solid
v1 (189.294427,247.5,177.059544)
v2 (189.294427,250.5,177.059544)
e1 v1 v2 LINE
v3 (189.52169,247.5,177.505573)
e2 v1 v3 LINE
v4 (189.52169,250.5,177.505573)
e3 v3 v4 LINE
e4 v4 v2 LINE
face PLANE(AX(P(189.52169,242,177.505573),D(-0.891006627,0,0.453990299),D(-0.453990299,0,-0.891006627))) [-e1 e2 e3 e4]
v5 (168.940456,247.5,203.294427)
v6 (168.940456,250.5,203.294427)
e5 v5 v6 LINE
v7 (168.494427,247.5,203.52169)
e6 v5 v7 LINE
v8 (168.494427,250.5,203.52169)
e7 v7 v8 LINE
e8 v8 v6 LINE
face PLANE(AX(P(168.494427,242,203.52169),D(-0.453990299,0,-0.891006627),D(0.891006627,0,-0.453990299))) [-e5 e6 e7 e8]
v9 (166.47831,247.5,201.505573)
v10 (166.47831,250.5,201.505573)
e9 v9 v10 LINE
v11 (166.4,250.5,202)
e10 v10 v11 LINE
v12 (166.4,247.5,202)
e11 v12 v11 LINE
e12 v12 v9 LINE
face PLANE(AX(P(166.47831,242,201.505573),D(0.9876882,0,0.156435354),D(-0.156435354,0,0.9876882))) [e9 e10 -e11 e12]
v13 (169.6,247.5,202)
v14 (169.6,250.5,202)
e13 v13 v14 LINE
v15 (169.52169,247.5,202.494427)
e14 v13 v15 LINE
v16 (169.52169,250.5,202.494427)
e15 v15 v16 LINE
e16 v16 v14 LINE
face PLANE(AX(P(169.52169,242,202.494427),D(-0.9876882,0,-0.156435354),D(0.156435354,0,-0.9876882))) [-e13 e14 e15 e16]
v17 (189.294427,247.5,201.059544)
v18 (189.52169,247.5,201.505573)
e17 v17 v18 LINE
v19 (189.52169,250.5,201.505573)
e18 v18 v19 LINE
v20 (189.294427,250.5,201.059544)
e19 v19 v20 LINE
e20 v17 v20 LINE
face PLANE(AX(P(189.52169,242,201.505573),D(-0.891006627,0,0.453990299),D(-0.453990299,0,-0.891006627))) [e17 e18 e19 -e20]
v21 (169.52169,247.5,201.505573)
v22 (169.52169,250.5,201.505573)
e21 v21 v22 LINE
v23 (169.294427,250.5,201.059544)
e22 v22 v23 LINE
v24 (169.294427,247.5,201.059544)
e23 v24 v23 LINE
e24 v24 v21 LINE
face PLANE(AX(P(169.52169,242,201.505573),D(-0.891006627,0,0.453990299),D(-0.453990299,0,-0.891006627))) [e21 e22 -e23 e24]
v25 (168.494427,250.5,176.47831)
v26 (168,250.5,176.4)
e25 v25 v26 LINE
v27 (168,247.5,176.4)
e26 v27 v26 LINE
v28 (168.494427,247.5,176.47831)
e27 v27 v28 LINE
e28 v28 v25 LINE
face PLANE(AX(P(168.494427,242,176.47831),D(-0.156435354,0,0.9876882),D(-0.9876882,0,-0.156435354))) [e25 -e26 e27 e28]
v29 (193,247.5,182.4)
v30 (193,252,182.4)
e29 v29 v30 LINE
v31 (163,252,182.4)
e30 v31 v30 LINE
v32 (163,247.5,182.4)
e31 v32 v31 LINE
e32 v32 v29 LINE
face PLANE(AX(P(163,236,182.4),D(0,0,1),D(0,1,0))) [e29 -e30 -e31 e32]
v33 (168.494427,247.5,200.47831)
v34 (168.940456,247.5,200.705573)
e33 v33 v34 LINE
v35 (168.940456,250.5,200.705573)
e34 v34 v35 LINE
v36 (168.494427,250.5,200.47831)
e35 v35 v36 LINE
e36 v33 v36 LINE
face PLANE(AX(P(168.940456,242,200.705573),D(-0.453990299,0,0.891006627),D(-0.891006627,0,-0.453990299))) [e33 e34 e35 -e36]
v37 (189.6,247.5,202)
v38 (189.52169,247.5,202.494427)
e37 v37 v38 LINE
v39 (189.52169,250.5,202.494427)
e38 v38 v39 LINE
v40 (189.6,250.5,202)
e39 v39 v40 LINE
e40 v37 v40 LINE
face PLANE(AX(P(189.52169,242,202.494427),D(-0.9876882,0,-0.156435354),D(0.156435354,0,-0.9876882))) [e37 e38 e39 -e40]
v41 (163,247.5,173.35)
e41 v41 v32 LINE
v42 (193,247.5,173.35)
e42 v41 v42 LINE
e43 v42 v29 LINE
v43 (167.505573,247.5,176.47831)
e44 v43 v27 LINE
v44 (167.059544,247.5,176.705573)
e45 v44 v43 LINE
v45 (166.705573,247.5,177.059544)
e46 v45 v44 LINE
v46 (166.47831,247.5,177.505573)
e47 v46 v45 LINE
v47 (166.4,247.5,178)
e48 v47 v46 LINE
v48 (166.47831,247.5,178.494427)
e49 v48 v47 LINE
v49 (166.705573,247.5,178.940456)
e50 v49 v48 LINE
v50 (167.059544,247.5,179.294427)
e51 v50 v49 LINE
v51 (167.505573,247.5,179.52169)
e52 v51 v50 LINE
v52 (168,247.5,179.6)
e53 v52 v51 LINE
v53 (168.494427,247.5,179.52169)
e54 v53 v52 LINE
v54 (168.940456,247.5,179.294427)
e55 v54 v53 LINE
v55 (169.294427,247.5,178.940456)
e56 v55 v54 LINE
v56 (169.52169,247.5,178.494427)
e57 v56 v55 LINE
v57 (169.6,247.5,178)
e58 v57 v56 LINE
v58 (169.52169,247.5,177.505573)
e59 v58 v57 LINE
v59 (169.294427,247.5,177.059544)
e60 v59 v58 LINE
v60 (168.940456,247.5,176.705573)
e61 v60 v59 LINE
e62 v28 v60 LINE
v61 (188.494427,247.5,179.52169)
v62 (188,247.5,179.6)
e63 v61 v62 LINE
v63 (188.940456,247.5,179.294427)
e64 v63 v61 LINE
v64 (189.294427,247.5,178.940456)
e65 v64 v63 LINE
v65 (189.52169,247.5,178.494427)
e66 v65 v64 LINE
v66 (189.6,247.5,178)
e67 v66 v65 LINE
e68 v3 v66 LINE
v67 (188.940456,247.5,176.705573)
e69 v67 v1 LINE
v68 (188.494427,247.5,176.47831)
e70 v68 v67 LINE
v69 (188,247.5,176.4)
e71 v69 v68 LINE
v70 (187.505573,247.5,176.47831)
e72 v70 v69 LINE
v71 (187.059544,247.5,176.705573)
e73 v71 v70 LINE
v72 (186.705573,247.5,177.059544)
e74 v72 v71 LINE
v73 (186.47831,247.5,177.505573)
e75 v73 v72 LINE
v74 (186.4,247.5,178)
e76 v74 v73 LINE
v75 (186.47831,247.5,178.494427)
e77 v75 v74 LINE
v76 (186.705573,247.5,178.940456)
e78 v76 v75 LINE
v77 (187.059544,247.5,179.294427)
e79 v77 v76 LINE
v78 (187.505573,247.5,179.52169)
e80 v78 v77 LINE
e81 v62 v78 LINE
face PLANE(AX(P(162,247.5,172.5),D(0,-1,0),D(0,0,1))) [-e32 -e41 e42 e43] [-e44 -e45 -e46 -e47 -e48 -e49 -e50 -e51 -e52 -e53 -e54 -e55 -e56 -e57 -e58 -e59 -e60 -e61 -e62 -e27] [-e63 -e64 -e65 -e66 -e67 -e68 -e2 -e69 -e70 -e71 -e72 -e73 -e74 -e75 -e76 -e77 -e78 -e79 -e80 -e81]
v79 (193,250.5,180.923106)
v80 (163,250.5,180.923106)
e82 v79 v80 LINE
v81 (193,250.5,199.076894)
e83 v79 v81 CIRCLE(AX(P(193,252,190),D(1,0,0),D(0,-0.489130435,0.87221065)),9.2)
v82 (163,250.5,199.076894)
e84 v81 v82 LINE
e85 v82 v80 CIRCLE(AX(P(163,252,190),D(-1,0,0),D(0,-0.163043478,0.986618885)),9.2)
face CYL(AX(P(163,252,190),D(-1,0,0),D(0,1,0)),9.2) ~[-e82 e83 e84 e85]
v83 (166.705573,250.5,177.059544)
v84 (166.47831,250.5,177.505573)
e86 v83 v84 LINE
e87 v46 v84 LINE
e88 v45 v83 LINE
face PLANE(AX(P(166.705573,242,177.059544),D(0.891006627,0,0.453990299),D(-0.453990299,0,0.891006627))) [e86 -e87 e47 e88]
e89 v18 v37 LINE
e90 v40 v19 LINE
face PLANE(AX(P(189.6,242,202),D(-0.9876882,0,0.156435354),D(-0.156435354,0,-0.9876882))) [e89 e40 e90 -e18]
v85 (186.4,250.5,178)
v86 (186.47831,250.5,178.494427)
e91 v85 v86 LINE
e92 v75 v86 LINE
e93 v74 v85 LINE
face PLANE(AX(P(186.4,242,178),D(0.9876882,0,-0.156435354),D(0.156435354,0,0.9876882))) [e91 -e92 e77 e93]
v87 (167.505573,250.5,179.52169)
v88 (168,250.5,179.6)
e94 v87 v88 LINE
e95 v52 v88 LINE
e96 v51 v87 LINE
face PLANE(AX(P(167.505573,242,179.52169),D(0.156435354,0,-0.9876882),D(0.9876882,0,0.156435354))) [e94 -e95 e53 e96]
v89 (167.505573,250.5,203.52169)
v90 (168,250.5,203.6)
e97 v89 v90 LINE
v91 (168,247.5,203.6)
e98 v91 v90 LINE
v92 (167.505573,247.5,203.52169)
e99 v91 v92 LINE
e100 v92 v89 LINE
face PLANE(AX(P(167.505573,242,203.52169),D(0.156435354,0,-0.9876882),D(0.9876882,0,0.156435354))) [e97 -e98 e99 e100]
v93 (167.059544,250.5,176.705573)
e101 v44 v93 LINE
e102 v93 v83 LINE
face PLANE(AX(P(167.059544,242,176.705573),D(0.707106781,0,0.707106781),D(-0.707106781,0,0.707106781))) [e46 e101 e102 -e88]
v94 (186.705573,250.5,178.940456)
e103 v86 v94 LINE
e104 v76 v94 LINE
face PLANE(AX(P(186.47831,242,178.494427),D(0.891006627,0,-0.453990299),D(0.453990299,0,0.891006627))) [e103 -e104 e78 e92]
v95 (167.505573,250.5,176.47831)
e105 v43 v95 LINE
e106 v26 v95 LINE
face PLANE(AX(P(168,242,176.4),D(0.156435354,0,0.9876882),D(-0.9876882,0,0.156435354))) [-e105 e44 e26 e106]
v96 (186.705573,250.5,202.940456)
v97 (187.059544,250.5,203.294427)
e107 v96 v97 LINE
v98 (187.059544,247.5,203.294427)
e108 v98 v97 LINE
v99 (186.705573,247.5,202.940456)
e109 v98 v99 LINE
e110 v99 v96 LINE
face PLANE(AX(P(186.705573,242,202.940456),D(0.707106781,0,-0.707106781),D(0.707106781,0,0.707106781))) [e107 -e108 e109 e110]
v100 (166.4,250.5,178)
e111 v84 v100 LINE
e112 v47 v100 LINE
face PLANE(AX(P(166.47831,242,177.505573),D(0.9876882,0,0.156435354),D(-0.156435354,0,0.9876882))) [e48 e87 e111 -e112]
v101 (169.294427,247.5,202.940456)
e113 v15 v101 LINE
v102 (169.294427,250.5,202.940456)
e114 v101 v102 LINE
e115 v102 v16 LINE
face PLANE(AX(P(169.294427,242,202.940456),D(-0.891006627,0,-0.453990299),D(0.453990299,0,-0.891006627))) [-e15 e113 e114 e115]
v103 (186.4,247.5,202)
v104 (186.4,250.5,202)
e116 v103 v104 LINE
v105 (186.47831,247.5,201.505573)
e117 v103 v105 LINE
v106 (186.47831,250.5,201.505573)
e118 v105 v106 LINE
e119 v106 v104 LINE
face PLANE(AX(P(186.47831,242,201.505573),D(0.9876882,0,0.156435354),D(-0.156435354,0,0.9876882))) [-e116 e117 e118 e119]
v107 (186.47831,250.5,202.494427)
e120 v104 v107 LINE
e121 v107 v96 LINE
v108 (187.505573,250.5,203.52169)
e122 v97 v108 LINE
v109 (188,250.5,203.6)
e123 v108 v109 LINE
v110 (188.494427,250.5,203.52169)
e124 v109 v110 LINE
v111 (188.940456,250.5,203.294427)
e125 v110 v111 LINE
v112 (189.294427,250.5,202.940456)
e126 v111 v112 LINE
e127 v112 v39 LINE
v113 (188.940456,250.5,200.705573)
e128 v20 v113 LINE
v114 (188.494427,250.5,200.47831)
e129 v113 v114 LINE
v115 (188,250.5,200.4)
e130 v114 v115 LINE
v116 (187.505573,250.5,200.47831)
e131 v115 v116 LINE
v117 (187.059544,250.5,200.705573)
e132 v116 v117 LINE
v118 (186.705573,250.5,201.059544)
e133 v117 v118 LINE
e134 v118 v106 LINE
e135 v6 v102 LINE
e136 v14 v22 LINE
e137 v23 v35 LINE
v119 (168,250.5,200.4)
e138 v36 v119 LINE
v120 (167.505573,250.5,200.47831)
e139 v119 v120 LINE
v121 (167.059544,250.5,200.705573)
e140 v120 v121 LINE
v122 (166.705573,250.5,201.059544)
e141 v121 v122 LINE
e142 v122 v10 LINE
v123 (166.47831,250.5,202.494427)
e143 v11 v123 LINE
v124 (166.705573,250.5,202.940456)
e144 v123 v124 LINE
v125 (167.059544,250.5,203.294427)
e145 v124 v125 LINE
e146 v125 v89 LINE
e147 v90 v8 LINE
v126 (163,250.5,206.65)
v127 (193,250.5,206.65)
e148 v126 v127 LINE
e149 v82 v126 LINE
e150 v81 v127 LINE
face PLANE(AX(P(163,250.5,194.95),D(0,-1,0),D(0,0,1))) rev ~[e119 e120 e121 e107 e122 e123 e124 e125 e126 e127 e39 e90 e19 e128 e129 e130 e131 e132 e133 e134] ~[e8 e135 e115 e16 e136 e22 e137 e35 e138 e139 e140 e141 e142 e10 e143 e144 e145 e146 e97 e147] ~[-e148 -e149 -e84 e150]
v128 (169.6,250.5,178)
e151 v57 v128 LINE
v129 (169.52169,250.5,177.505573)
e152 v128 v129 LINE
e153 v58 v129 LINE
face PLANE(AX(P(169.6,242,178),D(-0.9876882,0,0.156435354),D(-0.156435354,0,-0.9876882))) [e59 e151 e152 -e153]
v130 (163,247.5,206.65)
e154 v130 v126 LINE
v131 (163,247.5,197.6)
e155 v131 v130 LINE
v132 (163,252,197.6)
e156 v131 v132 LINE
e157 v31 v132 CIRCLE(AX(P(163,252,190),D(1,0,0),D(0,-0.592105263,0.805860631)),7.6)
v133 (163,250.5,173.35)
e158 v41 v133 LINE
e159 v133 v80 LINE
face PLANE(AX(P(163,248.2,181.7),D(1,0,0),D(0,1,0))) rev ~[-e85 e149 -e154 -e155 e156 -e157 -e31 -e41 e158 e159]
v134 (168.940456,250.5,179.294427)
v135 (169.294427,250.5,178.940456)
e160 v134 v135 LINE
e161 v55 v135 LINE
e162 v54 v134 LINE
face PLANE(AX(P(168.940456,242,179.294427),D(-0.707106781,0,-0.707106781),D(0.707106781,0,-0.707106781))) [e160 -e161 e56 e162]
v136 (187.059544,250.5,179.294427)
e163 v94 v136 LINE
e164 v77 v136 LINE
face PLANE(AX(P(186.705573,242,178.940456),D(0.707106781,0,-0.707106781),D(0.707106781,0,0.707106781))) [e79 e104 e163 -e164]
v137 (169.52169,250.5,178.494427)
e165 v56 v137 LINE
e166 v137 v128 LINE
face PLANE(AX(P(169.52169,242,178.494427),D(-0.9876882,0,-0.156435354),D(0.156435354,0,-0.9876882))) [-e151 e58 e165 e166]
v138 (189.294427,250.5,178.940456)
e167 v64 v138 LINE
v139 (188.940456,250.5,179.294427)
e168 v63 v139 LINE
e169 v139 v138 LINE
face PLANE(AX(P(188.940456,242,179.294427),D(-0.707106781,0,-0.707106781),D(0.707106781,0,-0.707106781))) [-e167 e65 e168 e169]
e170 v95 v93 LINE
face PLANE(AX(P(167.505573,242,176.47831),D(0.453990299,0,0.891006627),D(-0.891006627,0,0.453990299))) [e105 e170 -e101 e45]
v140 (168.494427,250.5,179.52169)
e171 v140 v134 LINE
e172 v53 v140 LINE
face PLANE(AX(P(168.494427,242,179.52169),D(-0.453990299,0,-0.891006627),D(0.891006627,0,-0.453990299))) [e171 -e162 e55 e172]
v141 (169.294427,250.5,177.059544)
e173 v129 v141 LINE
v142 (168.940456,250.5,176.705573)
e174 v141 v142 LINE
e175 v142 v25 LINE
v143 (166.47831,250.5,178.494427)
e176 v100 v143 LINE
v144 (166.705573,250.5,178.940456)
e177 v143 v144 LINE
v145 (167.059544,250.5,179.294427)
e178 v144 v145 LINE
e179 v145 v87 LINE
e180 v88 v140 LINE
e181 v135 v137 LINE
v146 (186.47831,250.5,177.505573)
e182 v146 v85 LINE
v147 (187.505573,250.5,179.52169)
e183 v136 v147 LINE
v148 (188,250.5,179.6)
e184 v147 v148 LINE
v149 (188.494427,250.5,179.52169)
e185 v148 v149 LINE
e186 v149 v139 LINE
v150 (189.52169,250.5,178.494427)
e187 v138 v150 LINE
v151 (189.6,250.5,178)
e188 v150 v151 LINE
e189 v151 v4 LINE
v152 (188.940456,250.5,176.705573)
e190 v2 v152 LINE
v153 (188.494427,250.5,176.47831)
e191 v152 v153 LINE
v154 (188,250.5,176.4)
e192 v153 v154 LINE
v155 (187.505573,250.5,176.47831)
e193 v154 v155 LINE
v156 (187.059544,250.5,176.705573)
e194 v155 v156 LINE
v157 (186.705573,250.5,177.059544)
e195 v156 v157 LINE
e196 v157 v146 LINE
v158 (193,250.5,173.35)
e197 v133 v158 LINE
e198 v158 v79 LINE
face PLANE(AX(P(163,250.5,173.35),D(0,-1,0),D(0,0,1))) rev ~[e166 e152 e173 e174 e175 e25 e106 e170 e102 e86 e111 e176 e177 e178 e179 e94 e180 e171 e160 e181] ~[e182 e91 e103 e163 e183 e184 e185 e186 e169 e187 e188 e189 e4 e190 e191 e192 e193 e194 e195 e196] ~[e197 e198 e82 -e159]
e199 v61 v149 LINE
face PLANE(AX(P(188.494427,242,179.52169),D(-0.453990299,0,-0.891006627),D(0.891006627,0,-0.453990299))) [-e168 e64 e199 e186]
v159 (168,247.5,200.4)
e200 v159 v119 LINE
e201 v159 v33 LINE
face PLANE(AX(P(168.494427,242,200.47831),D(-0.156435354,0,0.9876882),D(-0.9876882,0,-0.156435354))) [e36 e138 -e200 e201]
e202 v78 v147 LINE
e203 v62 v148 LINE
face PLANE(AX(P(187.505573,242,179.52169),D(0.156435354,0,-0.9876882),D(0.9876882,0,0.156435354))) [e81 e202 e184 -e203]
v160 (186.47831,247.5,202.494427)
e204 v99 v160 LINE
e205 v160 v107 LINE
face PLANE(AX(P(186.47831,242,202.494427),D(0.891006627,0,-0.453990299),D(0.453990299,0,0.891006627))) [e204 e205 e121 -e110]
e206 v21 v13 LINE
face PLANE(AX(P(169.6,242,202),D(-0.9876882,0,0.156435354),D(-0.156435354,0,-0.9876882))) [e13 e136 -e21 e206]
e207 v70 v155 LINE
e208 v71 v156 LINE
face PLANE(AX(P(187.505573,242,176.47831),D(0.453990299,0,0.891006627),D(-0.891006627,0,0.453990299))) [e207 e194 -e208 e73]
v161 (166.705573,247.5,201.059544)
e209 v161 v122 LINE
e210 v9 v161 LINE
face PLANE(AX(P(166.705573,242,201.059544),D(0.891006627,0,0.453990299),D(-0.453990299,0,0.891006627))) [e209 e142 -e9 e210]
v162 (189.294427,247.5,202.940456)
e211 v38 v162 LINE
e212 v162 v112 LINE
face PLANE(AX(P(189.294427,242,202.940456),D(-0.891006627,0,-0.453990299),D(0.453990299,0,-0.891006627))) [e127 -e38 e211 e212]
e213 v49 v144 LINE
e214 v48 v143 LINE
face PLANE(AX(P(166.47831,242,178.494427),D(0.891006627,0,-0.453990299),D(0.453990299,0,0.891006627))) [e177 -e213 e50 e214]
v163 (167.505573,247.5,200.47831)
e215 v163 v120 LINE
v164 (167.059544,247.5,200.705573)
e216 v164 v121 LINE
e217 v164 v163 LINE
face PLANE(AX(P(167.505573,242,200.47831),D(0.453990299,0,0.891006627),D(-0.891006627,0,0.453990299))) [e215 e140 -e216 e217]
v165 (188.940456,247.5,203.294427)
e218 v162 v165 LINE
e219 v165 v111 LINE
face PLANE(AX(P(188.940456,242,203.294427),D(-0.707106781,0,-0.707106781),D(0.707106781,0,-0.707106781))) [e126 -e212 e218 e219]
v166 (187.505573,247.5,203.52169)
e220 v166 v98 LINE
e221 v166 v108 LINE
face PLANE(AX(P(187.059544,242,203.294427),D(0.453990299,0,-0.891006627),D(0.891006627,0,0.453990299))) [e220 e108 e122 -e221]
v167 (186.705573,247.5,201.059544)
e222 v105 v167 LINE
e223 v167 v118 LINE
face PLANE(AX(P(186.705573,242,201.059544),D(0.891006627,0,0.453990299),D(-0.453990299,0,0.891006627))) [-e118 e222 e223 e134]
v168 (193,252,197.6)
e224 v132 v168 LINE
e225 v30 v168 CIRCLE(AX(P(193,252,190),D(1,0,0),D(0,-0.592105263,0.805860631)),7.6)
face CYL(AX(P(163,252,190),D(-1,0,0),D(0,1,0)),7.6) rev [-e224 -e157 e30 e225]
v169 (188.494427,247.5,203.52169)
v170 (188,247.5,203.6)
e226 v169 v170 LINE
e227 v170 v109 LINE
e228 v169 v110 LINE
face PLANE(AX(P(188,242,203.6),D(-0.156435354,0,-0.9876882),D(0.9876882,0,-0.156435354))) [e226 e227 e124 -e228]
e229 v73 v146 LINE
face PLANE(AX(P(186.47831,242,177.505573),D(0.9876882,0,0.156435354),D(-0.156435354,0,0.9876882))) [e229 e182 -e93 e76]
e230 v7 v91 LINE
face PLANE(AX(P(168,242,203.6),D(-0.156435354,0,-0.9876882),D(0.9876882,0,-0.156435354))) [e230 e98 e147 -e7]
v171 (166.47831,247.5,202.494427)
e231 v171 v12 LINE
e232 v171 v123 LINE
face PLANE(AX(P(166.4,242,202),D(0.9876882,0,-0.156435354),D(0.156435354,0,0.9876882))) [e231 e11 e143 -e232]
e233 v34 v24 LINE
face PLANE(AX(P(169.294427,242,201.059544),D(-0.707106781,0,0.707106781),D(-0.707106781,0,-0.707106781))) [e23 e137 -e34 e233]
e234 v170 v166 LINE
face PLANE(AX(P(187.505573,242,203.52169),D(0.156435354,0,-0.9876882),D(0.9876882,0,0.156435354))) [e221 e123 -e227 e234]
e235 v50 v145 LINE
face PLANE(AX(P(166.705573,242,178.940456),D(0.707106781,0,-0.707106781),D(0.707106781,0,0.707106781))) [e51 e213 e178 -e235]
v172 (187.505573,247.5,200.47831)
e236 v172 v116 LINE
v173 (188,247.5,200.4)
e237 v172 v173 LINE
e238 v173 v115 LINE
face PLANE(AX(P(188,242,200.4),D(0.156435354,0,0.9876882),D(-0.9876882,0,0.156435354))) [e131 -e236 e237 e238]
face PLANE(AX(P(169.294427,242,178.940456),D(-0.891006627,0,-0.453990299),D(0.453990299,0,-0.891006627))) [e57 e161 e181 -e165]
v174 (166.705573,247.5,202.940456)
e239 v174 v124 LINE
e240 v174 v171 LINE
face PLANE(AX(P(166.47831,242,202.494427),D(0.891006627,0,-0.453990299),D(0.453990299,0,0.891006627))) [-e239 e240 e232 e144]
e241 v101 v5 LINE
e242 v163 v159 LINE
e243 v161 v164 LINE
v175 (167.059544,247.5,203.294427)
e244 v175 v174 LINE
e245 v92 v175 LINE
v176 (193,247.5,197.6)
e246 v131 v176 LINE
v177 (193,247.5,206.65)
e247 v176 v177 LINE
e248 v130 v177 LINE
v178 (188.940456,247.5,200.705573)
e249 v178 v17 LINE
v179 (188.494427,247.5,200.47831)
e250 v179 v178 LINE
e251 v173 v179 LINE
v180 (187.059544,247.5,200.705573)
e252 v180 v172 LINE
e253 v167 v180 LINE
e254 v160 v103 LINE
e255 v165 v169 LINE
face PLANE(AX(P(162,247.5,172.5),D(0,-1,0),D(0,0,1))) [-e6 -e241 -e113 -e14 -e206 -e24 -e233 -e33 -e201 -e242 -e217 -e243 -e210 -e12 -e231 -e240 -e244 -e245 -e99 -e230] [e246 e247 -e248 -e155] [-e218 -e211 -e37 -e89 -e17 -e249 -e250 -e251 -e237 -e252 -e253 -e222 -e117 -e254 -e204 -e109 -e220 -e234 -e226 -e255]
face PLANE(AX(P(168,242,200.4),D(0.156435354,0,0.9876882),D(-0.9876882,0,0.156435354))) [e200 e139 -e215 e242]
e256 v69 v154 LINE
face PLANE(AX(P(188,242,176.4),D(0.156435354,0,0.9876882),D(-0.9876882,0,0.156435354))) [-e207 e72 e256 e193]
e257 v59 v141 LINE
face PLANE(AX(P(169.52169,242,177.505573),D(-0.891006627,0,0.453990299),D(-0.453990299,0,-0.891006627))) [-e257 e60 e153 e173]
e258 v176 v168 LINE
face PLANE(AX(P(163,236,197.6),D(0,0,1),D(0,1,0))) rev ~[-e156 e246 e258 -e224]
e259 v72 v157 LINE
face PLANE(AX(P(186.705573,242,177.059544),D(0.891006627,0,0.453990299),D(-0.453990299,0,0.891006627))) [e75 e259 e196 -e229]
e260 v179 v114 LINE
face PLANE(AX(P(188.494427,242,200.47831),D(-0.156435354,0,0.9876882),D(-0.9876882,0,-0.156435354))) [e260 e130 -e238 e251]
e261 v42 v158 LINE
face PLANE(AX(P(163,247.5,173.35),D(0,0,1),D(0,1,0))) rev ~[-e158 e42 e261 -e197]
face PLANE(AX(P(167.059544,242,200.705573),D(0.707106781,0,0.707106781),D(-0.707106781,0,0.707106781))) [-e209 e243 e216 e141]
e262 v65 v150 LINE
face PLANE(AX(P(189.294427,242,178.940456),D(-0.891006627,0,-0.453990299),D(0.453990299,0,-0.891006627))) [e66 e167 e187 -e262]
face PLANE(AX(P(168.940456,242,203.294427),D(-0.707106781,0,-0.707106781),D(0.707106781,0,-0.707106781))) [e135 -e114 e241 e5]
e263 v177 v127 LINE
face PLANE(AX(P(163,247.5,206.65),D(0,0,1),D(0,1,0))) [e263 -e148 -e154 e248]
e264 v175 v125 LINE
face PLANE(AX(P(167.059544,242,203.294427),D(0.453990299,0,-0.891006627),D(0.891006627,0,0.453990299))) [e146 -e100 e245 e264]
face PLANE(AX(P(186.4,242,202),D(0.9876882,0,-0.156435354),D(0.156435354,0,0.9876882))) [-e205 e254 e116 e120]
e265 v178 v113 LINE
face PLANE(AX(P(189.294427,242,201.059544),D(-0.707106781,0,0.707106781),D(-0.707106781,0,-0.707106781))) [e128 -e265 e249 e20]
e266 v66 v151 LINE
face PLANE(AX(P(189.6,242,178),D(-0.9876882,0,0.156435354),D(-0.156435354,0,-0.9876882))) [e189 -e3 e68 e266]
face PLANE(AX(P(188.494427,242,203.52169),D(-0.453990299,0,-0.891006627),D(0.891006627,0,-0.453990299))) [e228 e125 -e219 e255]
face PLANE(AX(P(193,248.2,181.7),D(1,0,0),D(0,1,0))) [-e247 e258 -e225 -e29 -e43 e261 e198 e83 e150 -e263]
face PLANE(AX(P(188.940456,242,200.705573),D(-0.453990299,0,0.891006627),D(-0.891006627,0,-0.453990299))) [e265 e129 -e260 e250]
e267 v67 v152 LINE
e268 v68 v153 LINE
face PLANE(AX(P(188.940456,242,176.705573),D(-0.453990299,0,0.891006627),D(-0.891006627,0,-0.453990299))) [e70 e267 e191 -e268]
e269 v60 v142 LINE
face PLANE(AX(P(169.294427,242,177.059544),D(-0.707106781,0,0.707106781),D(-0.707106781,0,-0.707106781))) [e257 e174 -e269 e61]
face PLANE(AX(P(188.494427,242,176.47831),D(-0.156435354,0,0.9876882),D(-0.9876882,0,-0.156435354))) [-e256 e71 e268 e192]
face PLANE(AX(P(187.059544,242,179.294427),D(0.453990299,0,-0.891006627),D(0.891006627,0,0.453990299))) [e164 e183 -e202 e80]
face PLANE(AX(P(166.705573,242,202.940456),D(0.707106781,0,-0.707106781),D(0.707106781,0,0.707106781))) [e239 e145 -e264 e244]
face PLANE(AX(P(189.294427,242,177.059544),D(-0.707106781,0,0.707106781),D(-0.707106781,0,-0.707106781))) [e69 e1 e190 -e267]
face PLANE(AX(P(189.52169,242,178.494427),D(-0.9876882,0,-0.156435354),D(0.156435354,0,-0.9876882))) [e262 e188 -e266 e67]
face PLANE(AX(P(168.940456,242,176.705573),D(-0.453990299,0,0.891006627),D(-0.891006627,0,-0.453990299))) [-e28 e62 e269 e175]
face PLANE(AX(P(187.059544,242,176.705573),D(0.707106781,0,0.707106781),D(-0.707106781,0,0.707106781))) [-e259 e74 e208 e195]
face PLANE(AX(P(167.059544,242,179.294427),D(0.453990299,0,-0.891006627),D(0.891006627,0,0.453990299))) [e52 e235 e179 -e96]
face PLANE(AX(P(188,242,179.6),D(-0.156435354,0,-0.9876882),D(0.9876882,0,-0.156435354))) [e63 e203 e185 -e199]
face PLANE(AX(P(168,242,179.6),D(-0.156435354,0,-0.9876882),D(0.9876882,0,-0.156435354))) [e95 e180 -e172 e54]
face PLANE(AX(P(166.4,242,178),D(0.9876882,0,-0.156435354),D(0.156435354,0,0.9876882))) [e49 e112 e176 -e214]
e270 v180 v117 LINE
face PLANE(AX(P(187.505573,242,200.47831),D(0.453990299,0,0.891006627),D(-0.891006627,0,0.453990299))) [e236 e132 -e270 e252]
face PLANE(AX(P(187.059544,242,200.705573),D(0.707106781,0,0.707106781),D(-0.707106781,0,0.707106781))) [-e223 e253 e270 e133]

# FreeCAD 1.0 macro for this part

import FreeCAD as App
import Part
import Sketcher

V = App.Vector
Q = App.Units.Quantity


def add_polygon(sketch, points):
    """Adds a closed chain of lines whose ends are joined by coincident constraints."""
    first, n = sketch.GeometryCount, len(points)
    for a, b in zip(points, points[1:] + points[:1]):
        sketch.addGeometry(Part.LineSegment(App.Vector(*a, 0), App.Vector(*b, 0)), False)
    for i in range(n):
        sketch.addConstraint(Sketcher.Constraint("Coincident", first + i, 2, first + (i + 1) % n, 1))

doc = App.newDocument("Part")
body = doc.addObject("PartDesign::Body", "Body")

# Sketch on XY plane
sketch1 = body.newObject("Sketcher::SketchObject", "Sketch")
sketch1.AttachmentSupport = (doc.getObject("XY_Plane"), [""])
sketch1.MapMode = "FlatFace"
add_polygon(sketch1, [(1.6, 0), (1.52169, 0.494427), (1.294427, 0.940456), (0.940456, 1.294427), (0.494427, 1.52169), (0, 1.6), (-0.494427, 1.52169), (-0.940456, 1.294427), (-1.294427, 0.940456), (-1.52169, 0.494427), (-1.6, 0), (-1.52169, -0.494427), (-1.294427, -0.940456), (-0.940456, -1.294427), (-0.494427, -1.52169), (0, -1.6), (0.494427, -1.52169), (0.940456, -1.294427), (1.294427, -0.940456), (1.52169, -0.494427)])  # lines 0-19
sketch1.addConstraint(Sketcher.Constraint("Symmetric", 0, 2, 10, 2, -1, 1))
sketch1.addConstraint(Sketcher.Constraint("Symmetric", 1, 2, 11, 2, -1, 1))
sketch1.addConstraint(Sketcher.Constraint("Symmetric", 2, 2, 12, 2, -1, 1))
sketch1.addConstraint(Sketcher.Constraint("Symmetric", 3, 2, 13, 2, -1, 1))
sketch1.addConstraint(Sketcher.Constraint("Symmetric", 4, 2, 14, 2, -1, 1))
sketch1.addConstraint(Sketcher.Constraint("Symmetric", 5, 2, 15, 2, -1, 1))
sketch1.addConstraint(Sketcher.Constraint("Symmetric", 6, 2, 16, 2, -1, 1))
sketch1.addConstraint(Sketcher.Constraint("Symmetric", 7, 2, 17, 2, -1, 1))
sketch1.addConstraint(Sketcher.Constraint("Symmetric", 8, 2, 18, 2, -1, 1))
sketch1.addConstraint(Sketcher.Constraint("Symmetric", 9, 2, 19, 2, -1, 1))
sketch1.addConstraint(Sketcher.Constraint("Symmetric", 3, 2, 5, 2, -2))
sketch1.addConstraint(Sketcher.Constraint("Symmetric", 2, 2, 6, 2, -2))
sketch1.addConstraint(Sketcher.Constraint("Symmetric", 1, 2, 7, 2, -2))
sketch1.addConstraint(Sketcher.Constraint("Symmetric", 0, 2, 8, 2, -2))
sketch1.addConstraint(Sketcher.Constraint("PointOnObject", 4, 2, -2))
sketch1.addConstraint(Sketcher.Constraint("PointOnObject", 9, 2, -1))
sketch1.addConstraint(Sketcher.Constraint("Perpendicular", 0, 5))
sketch1.addConstraint(Sketcher.Constraint("Perpendicular", 1, 6))
sketch1.addConstraint(Sketcher.Constraint("Perpendicular", 2, 7))
sketch1.addConstraint(Sketcher.Constraint("Equal", 0, 1))
sketch1.addConstraint(Sketcher.Constraint("Equal", 1, 2))
sketch1.addConstraint(Sketcher.Constraint("Equal", 2, 3))
sketch1.addConstraint(Sketcher.Constraint("Equal", 3, 4))
sketch1.addConstraint(Sketcher.Constraint("Angle", 1, Q("116.999987 deg")))
sketch1.addConstraint(Sketcher.Constraint("DistanceY", -1, 1, 4, 2, Q("1.6 mm")))
sketch1.addConstraint(Sketcher.Constraint("DistanceY", 0, 2, 2, 2, Q("0.8 mm")))
pad1 = body.newObject("PartDesign::Pad", "Pad")
pad1.Profile = sketch1
pad1.Length = 10
body2 = doc.addObject("PartDesign::Body", "Body001")
doc.recompute()

body.Placement = App.Placement(V(0, 0, 0), App.Rotation(V(0, 1, 0), 90))
boolean = body2.newObject("PartDesign::Boolean", "Boolean")
boolean.Type = "Fuse"
boolean.addObjects([body])
body3 = doc.addObject("PartDesign::Body", "Body002")
doc.recompute()

body2.Placement = App.Placement(V(-10, 12, 10), App.Rotation(V(0, 0, 1), 0))
boolean2 = body3.newObject("PartDesign::Boolean", "Boolean001")
boolean2.Type = "Fuse"
boolean2.addObjects([body2])
body4 = doc.addObject("PartDesign::Body", "Body003")

# Sketch on XY plane
sketch2 = body4.newObject("Sketcher::SketchObject", "Sketch001")
sketch2.AttachmentSupport = (doc.getObject("XY_Plane003"), [""])
sketch2.MapMode = "FlatFace"
add_polygon(sketch2, [(1.6, 0), (1.52169, 0.494427), (1.294427, 0.940456), (0.940456, 1.294427), (0.494427, 1.52169), (0, 1.6), (-0.494427, 1.52169), (-0.940456, 1.294427), (-1.294427, 0.940456), (-1.52169, 0.494427), (-1.6, 0), (-1.52169, -0.494427), (-1.294427, -0.940456), (-0.940456, -1.294427), (-0.494427, -1.52169), (0, -1.6), (0.494427, -1.52169), (0.940456, -1.294427), (1.294427, -0.940456), (1.52169, -0.494427)])  # lines 0-19
sketch2.addConstraint(Sketcher.Constraint("Symmetric", 0, 2, 10, 2, -1, 1))
sketch2.addConstraint(Sketcher.Constraint("Symmetric", 1, 2, 11, 2, -1, 1))
sketch2.addConstraint(Sketcher.Constraint("Symmetric", 2, 2, 12, 2, -1, 1))
sketch2.addConstraint(Sketcher.Constraint("Symmetric", 3, 2, 13, 2, -1, 1))
sketch2.addConstraint(Sketcher.Constraint("Symmetric", 4, 2, 14, 2, -1, 1))
sketch2.addConstraint(Sketcher.Constraint("Symmetric", 5, 2, 15, 2, -1, 1))
sketch2.addConstraint(Sketcher.Constraint("Symmetric", 6, 2, 16, 2, -1, 1))
sketch2.addConstraint(Sketcher.Constraint("Symmetric", 7, 2, 17, 2, -1, 1))
sketch2.addConstraint(Sketcher.Constraint("Symmetric", 8, 2, 18, 2, -1, 1))
sketch2.addConstraint(Sketcher.Constraint("Symmetric", 9, 2, 19, 2, -1, 1))
sketch2.addConstraint(Sketcher.Constraint("Symmetric", 3, 2, 5, 2, -2))
sketch2.addConstraint(Sketcher.Constraint("Symmetric", 2, 2, 6, 2, -2))
sketch2.addConstraint(Sketcher.Constraint("Symmetric", 1, 2, 7, 2, -2))
sketch2.addConstraint(Sketcher.Constraint("Symmetric", 0, 2, 8, 2, -2))
sketch2.addConstraint(Sketcher.Constraint("PointOnObject", 4, 2, -2))
sketch2.addConstraint(Sketcher.Constraint("PointOnObject", 9, 2, -1))
sketch2.addConstraint(Sketcher.Constraint("Perpendicular", 0, 5))
sketch2.addConstraint(Sketcher.Constraint("Perpendicular", 1, 6))
sketch2.addConstraint(Sketcher.Constraint("Perpendicular", 2, 7))
sketch2.addConstraint(Sketcher.Constraint("Equal", 0, 1))
sketch2.addConstraint(Sketcher.Constraint("Equal", 1, 2))
sketch2.addConstraint(Sketcher.Constraint("Equal", 2, 3))
sketch2.addConstraint(Sketcher.Constraint("Equal", 3, 4))
sketch2.addConstraint(Sketcher.Constraint("Angle", 1, Q("116.999987 deg")))
sketch2.addConstraint(Sketcher.Constraint("DistanceY", -1, 1, 4, 2, Q("1.6 mm")))
sketch2.addConstraint(Sketcher.Constraint("DistanceY", 0, 2, 2, 2, Q("0.8 mm")))
pad2 = body4.newObject("PartDesign::Pad", "Pad001")
pad2.Profile = sketch2
pad2.Length = 10
body5 = doc.addObject("PartDesign::Body", "Body004")
doc.recompute()

body4.Placement = App.Placement(V(0, 0, 0), App.Rotation(V(0, 1, 0), 90))
boolean3 = body5.newObject("PartDesign::Boolean", "Boolean002")
boolean3.Type = "Fuse"
boolean3.addObjects([body4])
body6 = doc.addObject("PartDesign::Body", "Body005")
doc.recompute()

body5.Placement = App.Placement(V(-10, 12, -10), App.Rotation(V(0, 0, 1), 0))
boolean4 = body6.newObject("PartDesign::Boolean", "Boolean003")
boolean4.Type = "Fuse"
boolean4.addObjects([body5])
body7 = doc.addObject("PartDesign::Body", "Body006")

# Sketch on XY plane
sketch3 = body7.newObject("Sketcher::SketchObject", "Sketch002")
sketch3.AttachmentSupport = (doc.getObject("XY_Plane006"), [""])
sketch3.MapMode = "FlatFace"
add_polygon(sketch3, [(1.6, 0), (1.52169, 0.494427), (1.294427, 0.940456), (0.940456, 1.294427), (0.494427, 1.52169), (0, 1.6), (-0.494427, 1.52169), (-0.940456, 1.294427), (-1.294427, 0.940456), (-1.52169, 0.494427), (-1.6, 0), (-1.52169, -0.494427), (-1.294427, -0.940456), (-0.940456, -1.294427), (-0.494427, -1.52169), (0, -1.6), (0.494427, -1.52169), (0.940456, -1.294427), (1.294427, -0.940456), (1.52169, -0.494427)])  # lines 0-19
sketch3.addConstraint(Sketcher.Constraint("Symmetric", 0, 2, 10, 2, -1, 1))
sketch3.addConstraint(Sketcher.Constraint("Symmetric", 1, 2, 11, 2, -1, 1))
sketch3.addConstraint(Sketcher.Constraint("Symmetric", 2, 2, 12, 2, -1, 1))
sketch3.addConstraint(Sketcher.Constraint("Symmetric", 3, 2, 13, 2, -1, 1))
sketch3.addConstraint(Sketcher.Constraint("Symmetric", 4, 2, 14, 2, -1, 1))
sketch3.addConstraint(Sketcher.Constraint("Symmetric", 5, 2, 15, 2, -1, 1))
sketch3.addConstraint(Sketcher.Constraint("Symmetric", 6, 2, 16, 2, -1, 1))
sketch3.addConstraint(Sketcher.Constraint("Symmetric", 7, 2, 17, 2, -1, 1))
sketch3.addConstraint(Sketcher.Constraint("Symmetric", 8, 2, 18, 2, -1, 1))
sketch3.addConstraint(Sketcher.Constraint("Symmetric", 9, 2, 19, 2, -1, 1))
sketch3.addConstraint(Sketcher.Constraint("Symmetric", 3, 2, 5, 2, -2))
sketch3.addConstraint(Sketcher.Constraint("Symmetric", 2, 2, 6, 2, -2))
sketch3.addConstraint(Sketcher.Constraint("Symmetric", 1, 2, 7, 2, -2))
sketch3.addConstraint(Sketcher.Constraint("Symmetric", 0, 2, 8, 2, -2))
sketch3.addConstraint(Sketcher.Constraint("PointOnObject", 4, 2, -2))
sketch3.addConstraint(Sketcher.Constraint("PointOnObject", 9, 2, -1))
sketch3.addConstraint(Sketcher.Constraint("Perpendicular", 0, 5))
sketch3.addConstraint(Sketcher.Constraint("Perpendicular", 1, 6))
sketch3.addConstraint(Sketcher.Constraint("Perpendicular", 2, 7))
sketch3.addConstraint(Sketcher.Constraint("Equal", 0, 1))
sketch3.addConstraint(Sketcher.Constraint("Equal", 1, 2))
sketch3.addConstraint(Sketcher.Constraint("Equal", 2, 3))
sketch3.addConstraint(Sketcher.Constraint("Equal", 3, 4))
sketch3.addConstraint(Sketcher.Constraint("Angle", 1, Q("116.999987 deg")))
sketch3.addConstraint(Sketcher.Constraint("DistanceY", -1, 1, 4, 2, Q("1.6 mm")))
sketch3.addConstraint(Sketcher.Constraint("DistanceY", 0, 2, 2, 2, Q("0.8 mm")))
pad3 = body7.newObject("PartDesign::Pad", "Pad002")
pad3.Profile = sketch3
pad3.Length = 10
body8 = doc.addObject("PartDesign::Body", "Body007")
doc.recompute()

body7.Placement = App.Placement(V(0, 0, 0), App.Rotation(V(0, 1, 0), 90))
boolean5 = body8.newObject("PartDesign::Boolean", "Boolean004")
boolean5.Type = "Fuse"
boolean5.addObjects([body7])
body9 = doc.addObject("PartDesign::Body", "Body008")
doc.recompute()

body8.Placement = App.Placement(V(-10, -12, 10), App.Rotation(V(0, 0, 1), 0))
boolean6 = body9.newObject("PartDesign::Boolean", "Boolean005")
boolean6.Type = "Fuse"
boolean6.addObjects([body8])
body10 = doc.addObject("PartDesign::Body", "Body009")

# Sketch on XY plane
sketch4 = body10.newObject("Sketcher::SketchObject", "Sketch003")
sketch4.AttachmentSupport = (doc.getObject("XY_Plane009"), [""])
sketch4.MapMode = "FlatFace"
add_polygon(sketch4, [(1.6, 0), (1.52169, 0.494427), (1.294427, 0.940456), (0.940456, 1.294427), (0.494427, 1.52169), (0, 1.6), (-0.494427, 1.52169), (-0.940456, 1.294427), (-1.294427, 0.940456), (-1.52169, 0.494427), (-1.6, 0), (-1.52169, -0.494427), (-1.294427, -0.940456), (-0.940456, -1.294427), (-0.494427, -1.52169), (0, -1.6), (0.494427, -1.52169), (0.940456, -1.294427), (1.294427, -0.940456), (1.52169, -0.494427)])  # lines 0-19
sketch4.addConstraint(Sketcher.Constraint("Symmetric", 0, 2, 10, 2, -1, 1))
sketch4.addConstraint(Sketcher.Constraint("Symmetric", 1, 2, 11, 2, -1, 1))
sketch4.addConstraint(Sketcher.Constraint("Symmetric", 2, 2, 12, 2, -1, 1))
sketch4.addConstraint(Sketcher.Constraint("Symmetric", 3, 2, 13, 2, -1, 1))
sketch4.addConstraint(Sketcher.Constraint("Symmetric", 4, 2, 14, 2, -1, 1))
sketch4.addConstraint(Sketcher.Constraint("Symmetric", 5, 2, 15, 2, -1, 1))
sketch4.addConstraint(Sketcher.Constraint("Symmetric", 6, 2, 16, 2, -1, 1))
sketch4.addConstraint(Sketcher.Constraint("Symmetric", 7, 2, 17, 2, -1, 1))
sketch4.addConstraint(Sketcher.Constraint("Symmetric", 8, 2, 18, 2, -1, 1))
sketch4.addConstraint(Sketcher.Constraint("Symmetric", 9, 2, 19, 2, -1, 1))
sketch4.addConstraint(Sketcher.Constraint("Symmetric", 3, 2, 5, 2, -2))
sketch4.addConstraint(Sketcher.Constraint("Symmetric", 2, 2, 6, 2, -2))
sketch4.addConstraint(Sketcher.Constraint("Symmetric", 1, 2, 7, 2, -2))
sketch4.addConstraint(Sketcher.Constraint("Symmetric", 0, 2, 8, 2, -2))
sketch4.addConstraint(Sketcher.Constraint("PointOnObject", 4, 2, -2))
sketch4.addConstraint(Sketcher.Constraint("PointOnObject", 9, 2, -1))
sketch4.addConstraint(Sketcher.Constraint("Perpendicular", 0, 5))
sketch4.addConstraint(Sketcher.Constraint("Perpendicular", 1, 6))
sketch4.addConstraint(Sketcher.Constraint("Perpendicular", 2, 7))
sketch4.addConstraint(Sketcher.Constraint("Equal", 0, 1))
sketch4.addConstraint(Sketcher.Constraint("Equal", 1, 2))
sketch4.addConstraint(Sketcher.Constraint("Equal", 2, 3))
sketch4.addConstraint(Sketcher.Constraint("Equal", 3, 4))
sketch4.addConstraint(Sketcher.Constraint("Angle", 1, Q("116.999987 deg")))
sketch4.addConstraint(Sketcher.Constraint("DistanceY", -1, 1, 4, 2, Q("1.6 mm")))
sketch4.addConstraint(Sketcher.Constraint("DistanceY", 0, 2, 2, 2, Q("0.8 mm")))
pad4 = body10.newObject("PartDesign::Pad", "Pad003")
pad4.Profile = sketch4
pad4.Length = 10
body11 = doc.addObject("PartDesign::Body", "Body010")
doc.recompute()

body10.Placement = App.Placement(V(0, 0, 0), App.Rotation(V(0, 1, 0), 90))
boolean7 = body11.newObject("PartDesign::Boolean", "Boolean006")
boolean7.Type = "Fuse"
boolean7.addObjects([body10])
body12 = doc.addObject("PartDesign::Body", "Body011")
doc.recompute()

body11.Placement = App.Placement(V(-10, -12, -10), App.Rotation(V(0, 0, 1), 0))
boolean8 = body12.newObject("PartDesign::Boolean", "Boolean007")
boolean8.Type = "Fuse"
boolean8.addObjects([body11])
body13 = doc.addObject("PartDesign::Body", "Body012")

# Sketch on XY plane
sketch5 = body13.newObject("Sketcher::SketchObject", "Sketch004")
sketch5.AttachmentSupport = (doc.getObject("XY_Plane012"), [""])
sketch5.MapMode = "FlatFace"
sketch5.AttachmentOffset = App.Placement(V(0, 0, -16), App.Rotation())
add_polygon(sketch5, [(-9.5, 17.5), (-9.5, -17.5), (-4.5, -17.5), (-4.5, 17.5)])  # lines 0-3
sketch5.addConstraint(Sketcher.Constraint("Vertical", 0))
sketch5.addConstraint(Sketcher.Constraint("Horizontal", 1))
sketch5.addConstraint(Sketcher.Constraint("Vertical", 2))
sketch5.addConstraint(Sketcher.Constraint("Horizontal", 3))
sketch5.addConstraint(Sketcher.Constraint("DistanceX", 1, 1, 1, 2, Q("5 mm")))
sketch5.addConstraint(Sketcher.Constraint("DistanceY", 0, 2, 0, 1, Q("35 mm")))
sketch5.addConstraint(Sketcher.Constraint("DistanceX", 0, 2, -1, 1, Q("9.5 mm")))
sketch5.addConstraint(Sketcher.Constraint("DistanceY", 0, 2, -1, 1, Q("17.5 mm")))
pad5 = body13.newObject("PartDesign::Pad", "Pad004")
pad5.Profile = sketch5
pad5.Length = 32
body14 = doc.addObject("PartDesign::Body", "Body013")
body14.AllowCompound = True

# Sketch on XY plane
sketch6 = body14.newObject("Sketcher::SketchObject", "Sketch005")
sketch6.AttachmentSupport = (doc.getObject("XY_Plane013"), [""])
sketch6.MapMode = "FlatFace"
sketch6.AttachmentOffset = App.Placement(V(0, 0, -15), App.Rotation())
add_polygon(sketch6, [(-16, 7.6), (-16, -7.6), (0, -7.6), (0, 7.6)])  # lines 0-3
sketch6.addConstraint(Sketcher.Constraint("Vertical", 0))
sketch6.addConstraint(Sketcher.Constraint("Horizontal", 1))
sketch6.addConstraint(Sketcher.Constraint("Vertical", 2))
sketch6.addConstraint(Sketcher.Constraint("Horizontal", 3))
sketch6.addConstraint(Sketcher.Constraint("Symmetric", 1, 2, 2, 2, -1, 1))
sketch6.addConstraint(Sketcher.Constraint("DistanceX", 1, 1, 1, 2, Q("16 mm")))
sketch6.addConstraint(Sketcher.Constraint("DistanceY", 0, 2, 0, 1, Q("15.2 mm")))
pad6 = body14.newObject("PartDesign::Pad", "Pad005")
pad6.Profile = sketch6
pad6.Length = 30
doc.recompute()

boolean9 = body14.newObject("PartDesign::Boolean", "Boolean008")
boolean9.Type = "Fuse"
boolean9.addObjects([body3])
doc.recompute()

boolean10 = body14.newObject("PartDesign::Boolean", "Boolean009")
boolean10.Type = "Fuse"
boolean10.addObjects([body6])
doc.recompute()

boolean11 = body14.newObject("PartDesign::Boolean", "Boolean010")
boolean11.Type = "Fuse"
boolean11.addObjects([body9])
doc.recompute()

boolean12 = body14.newObject("PartDesign::Boolean", "Boolean011")
boolean12.Type = "Fuse"
boolean12.addObjects([body12])
doc.recompute()

boolean13 = body14.newObject("PartDesign::Boolean", "Boolean012")
boolean13.Type = "Fuse"
boolean13.addObjects([body13])
body15 = doc.addObject("PartDesign::Body", "Body014")

# Sketch on XY plane
sketch7 = body15.newObject("Sketcher::SketchObject", "Sketch006")
sketch7.AttachmentSupport = (doc.getObject("XY_Plane014"), [""])
sketch7.MapMode = "FlatFace"
sketch7.AttachmentOffset = App.Placement(V(0, 0, -15), App.Rotation())
add_polygon(sketch7, [(-4.5, 16.65), (-4.5, 4.95), (-1.5, 4.95), (-1.5, 16.65)])  # lines 0-3
sketch7.addConstraint(Sketcher.Constraint("Vertical", 0))
sketch7.addConstraint(Sketcher.Constraint("Horizontal", 1))
sketch7.addConstraint(Sketcher.Constraint("Vertical", 2))
sketch7.addConstraint(Sketcher.Constraint("Horizontal", 3))
sketch7.addConstraint(Sketcher.Constraint("DistanceX", 1, 1, 1, 2, Q("3 mm")))
sketch7.addConstraint(Sketcher.Constraint("DistanceY", 0, 2, 0, 1, Q("11.7 mm")))
sketch7.addConstraint(Sketcher.Constraint("DistanceX", 0, 2, -1, 1, Q("4.5 mm")))
sketch7.addConstraint(Sketcher.Constraint("DistanceY", -1, 1, 0, 2, Q("4.95 mm")))
pad7 = body15.newObject("PartDesign::Pad", "Pad006")
pad7.Profile = sketch7
pad7.Length = 30
body16 = doc.addObject("PartDesign::Body", "Body015")

# Sketch on XY plane
sketch8 = body16.newObject("Sketcher::SketchObject", "Sketch007")
sketch8.AttachmentSupport = (doc.getObject("XY_Plane015"), [""])
sketch8.MapMode = "FlatFace"
sketch8.AttachmentOffset = App.Placement(V(0, 0, -15), App.Rotation())
add_polygon(sketch8, [(-4.5, -4.95), (-4.5, -16.65), (-1.5, -16.65), (-1.5, -4.95)])  # lines 0-3
sketch8.addConstraint(Sketcher.Constraint("Vertical", 0))
sketch8.addConstraint(Sketcher.Constraint("Horizontal", 1))
sketch8.addConstraint(Sketcher.Constraint("Vertical", 2))
sketch8.addConstraint(Sketcher.Constraint("Horizontal", 3))
sketch8.addConstraint(Sketcher.Constraint("DistanceX", 1, 1, 1, 2, Q("3 mm")))
sketch8.addConstraint(Sketcher.Constraint("DistanceY", 0, 2, 0, 1, Q("11.7 mm")))
sketch8.addConstraint(Sketcher.Constraint("DistanceX", 0, 2, -1, 1, Q("4.5 mm")))
sketch8.addConstraint(Sketcher.Constraint("DistanceY", 0, 2, -1, 1, Q("16.65 mm")))
pad8 = body16.newObject("PartDesign::Pad", "Pad007")
pad8.Profile = sketch8
pad8.Length = 30
body17 = doc.addObject("PartDesign::Body", "Body016")

# Sketch on XY plane
sketch9 = body17.newObject("Sketcher::SketchObject", "Sketch008")
sketch9.AttachmentSupport = (doc.getObject("XY_Plane016"), [""])
sketch9.MapMode = "FlatFace"
sketch9.AttachmentOffset = App.Placement(V(0, 0, -15), App.Rotation())
add_polygon(sketch9, [(-4.6, 9.1), (-4.6, 7.5), (-3, 7.5), (-3, 9.1)])  # lines 0-3
sketch9.addConstraint(Sketcher.Constraint("Vertical", 0))
sketch9.addConstraint(Sketcher.Constraint("Horizontal", 1))
sketch9.addConstraint(Sketcher.Constraint("Vertical", 2))
sketch9.addConstraint(Sketcher.Constraint("Horizontal", 3))
sketch9.addConstraint(Sketcher.Constraint("Equal", 3, 0))
sketch9.addConstraint(Sketcher.Constraint("DistanceX", 1, 1, 1, 2, Q("1.6 mm")))
sketch9.addConstraint(Sketcher.Constraint("DistanceX", 1, 2, -1, 1, Q("3 mm")))
sketch9.addConstraint(Sketcher.Constraint("DistanceY", -1, 1, 0, 2, Q("7.5 mm")))
pad9 = body17.newObject("PartDesign::Pad", "Pad008")
pad9.Profile = sketch9
pad9.Length = 30
body18 = doc.addObject("PartDesign::Body", "Body017")

# Sketch on XY plane
sketch10 = body18.newObject("Sketcher::SketchObject", "Sketch009")
sketch10.AttachmentSupport = (doc.getObject("XY_Plane017"), [""])
sketch10.MapMode = "FlatFace"
sketch10.AttachmentOffset = App.Placement(V(0, 0, -15), App.Rotation())
add_polygon(sketch10, [(-4.6, -7.5), (-4.6, -9.1), (-3, -9.1), (-3, -7.5)])  # lines 0-3
sketch10.addConstraint(Sketcher.Constraint("Vertical", 0))
sketch10.addConstraint(Sketcher.Constraint("Horizontal", 1))
sketch10.addConstraint(Sketcher.Constraint("Vertical", 2))
sketch10.addConstraint(Sketcher.Constraint("Horizontal", 3))
sketch10.addConstraint(Sketcher.Constraint("Equal", 3, 0))
sketch10.addConstraint(Sketcher.Constraint("DistanceX", 1, 1, 1, 2, Q("1.6 mm")))
sketch10.addConstraint(Sketcher.Constraint("DistanceX", 1, 2, -1, 1, Q("3 mm")))
sketch10.addConstraint(Sketcher.Constraint("DistanceY", 0, 2, -1, 1, Q("9.1 mm")))
pad10 = body18.newObject("PartDesign::Pad", "Pad009")
pad10.Profile = sketch10
pad10.Length = 30
body19 = doc.addObject("PartDesign::Body", "Body018")

# Sketch on XY plane
sketch11 = body19.newObject("Sketcher::SketchObject", "Sketch010")
sketch11.AttachmentSupport = (doc.getObject("XY_Plane018"), [""])
sketch11.MapMode = "FlatFace"
sketch11.AttachmentOffset = App.Placement(V(0, 0, -15), App.Rotation())
sketch11.addGeometry(Part.Circle(V(0, 0, 0), V(0, 0, 1), 7.6), False)
sketch11.addConstraint(Sketcher.Constraint("Coincident", 0, 3, -1, 1))
sketch11.addConstraint(Sketcher.Constraint("Diameter", 0, Q("15.2 mm")))
pad11 = body19.newObject("PartDesign::Pad", "Pad010")
pad11.Profile = sketch11
pad11.Length = 30
body20 = doc.addObject("PartDesign::Body", "Body019")

# Sketch on XY plane
sketch12 = body20.newObject("Sketcher::SketchObject", "Sketch011")
sketch12.AttachmentSupport = (doc.getObject("XY_Plane019"), [""])
sketch12.MapMode = "FlatFace"
sketch12.AttachmentOffset = App.Placement(V(0, 0, -15), App.Rotation())
sketch12.addGeometry(Part.Circle(V(0, 0, 0), V(0, 0, 1), 9.2), False)
sketch12.addConstraint(Sketcher.Constraint("Coincident", 0, 3, -1, 1))
sketch12.addConstraint(Sketcher.Constraint("Diameter", 0, Q("18.4 mm")))
pad12 = body20.newObject("PartDesign::Pad", "Pad011")
pad12.Profile = sketch12
pad12.Length = 30
doc.recompute()

boolean14 = body20.newObject("PartDesign::Boolean", "Boolean013")
boolean14.Type = "Cut"
boolean14.addObjects([body19])
doc.recompute()

boolean15 = body20.newObject("PartDesign::Boolean", "Boolean014")
boolean15.Type = "Fuse"
boolean15.addObjects([body15])
doc.recompute()

boolean16 = body20.newObject("PartDesign::Boolean", "Boolean015")
boolean16.Type = "Fuse"
boolean16.addObjects([body16])
doc.recompute()

boolean17 = body20.newObject("PartDesign::Boolean", "Boolean016")
boolean17.Type = "Fuse"
boolean17.addObjects([body17])
doc.recompute()

boolean18 = body20.newObject("PartDesign::Boolean", "Boolean017")
boolean18.Type = "Fuse"
boolean18.addObjects([body18])
doc.recompute()

boolean19 = body20.newObject("PartDesign::Boolean", "Boolean018")
boolean19.Type = "Cut"
boolean19.addObjects([body14])
body21 = doc.addObject("PartDesign::Body", "Body020")
doc.recompute()

body20.Placement = App.Placement(V(0, 0, 0), App.Rotation(V(1, 0, 0), 90))
boolean20 = body21.newObject("PartDesign::Boolean", "Boolean019")
boolean20.Type = "Fuse"
boolean20.addObjects([body20])
body22 = doc.addObject("PartDesign::Body", "Body021")
doc.recompute()

body21.Placement = App.Placement(V(178, 252, 190), App.Rotation(V(0, 0, 1), 90))
boolean21 = body22.newObject("PartDesign::Boolean", "Boolean020")
boolean21.Type = "Fuse"
boolean21.addObjects([body21])

doc.recompute()
